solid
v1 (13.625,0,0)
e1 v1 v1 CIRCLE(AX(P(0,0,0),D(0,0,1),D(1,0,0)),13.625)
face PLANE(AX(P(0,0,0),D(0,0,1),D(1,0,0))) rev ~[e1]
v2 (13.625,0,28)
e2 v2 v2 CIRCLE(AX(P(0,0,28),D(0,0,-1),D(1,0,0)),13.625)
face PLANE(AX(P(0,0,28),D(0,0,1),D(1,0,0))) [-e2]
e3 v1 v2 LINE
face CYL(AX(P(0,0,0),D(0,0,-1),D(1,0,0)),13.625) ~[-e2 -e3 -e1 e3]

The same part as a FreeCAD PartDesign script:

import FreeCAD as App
import Part
import Sketcher
from FreeCAD import Vector
Q = App.Units.Quantity

doc = App.newDocument("Part")
body = doc.addObject("PartDesign::Body", "Body")

# Sketch on XY plane
sketch1 = body.newObject("Sketcher::SketchObject", "Sketch")
sketch1.AttachmentSupport = (doc.getObject("XY_Plane"), [""])
sketch1.MapMode = "FlatFace"
sketch1.addGeometry(Part.Circle(Vector(0, 0, 0), Vector(0, 0, 1), 14), False)
sketch1.addConstraint([
    Sketcher.Constraint("Coincident", 0, 3, -1, 1),
    Sketcher.Constraint("Diameter", 0, Q("27.25 mm")),
])
pad1 = body.newObject("PartDesign::Pad", "Pad")
pad1.Profile = sketch1
pad1.Length = 28

doc.recompute()
